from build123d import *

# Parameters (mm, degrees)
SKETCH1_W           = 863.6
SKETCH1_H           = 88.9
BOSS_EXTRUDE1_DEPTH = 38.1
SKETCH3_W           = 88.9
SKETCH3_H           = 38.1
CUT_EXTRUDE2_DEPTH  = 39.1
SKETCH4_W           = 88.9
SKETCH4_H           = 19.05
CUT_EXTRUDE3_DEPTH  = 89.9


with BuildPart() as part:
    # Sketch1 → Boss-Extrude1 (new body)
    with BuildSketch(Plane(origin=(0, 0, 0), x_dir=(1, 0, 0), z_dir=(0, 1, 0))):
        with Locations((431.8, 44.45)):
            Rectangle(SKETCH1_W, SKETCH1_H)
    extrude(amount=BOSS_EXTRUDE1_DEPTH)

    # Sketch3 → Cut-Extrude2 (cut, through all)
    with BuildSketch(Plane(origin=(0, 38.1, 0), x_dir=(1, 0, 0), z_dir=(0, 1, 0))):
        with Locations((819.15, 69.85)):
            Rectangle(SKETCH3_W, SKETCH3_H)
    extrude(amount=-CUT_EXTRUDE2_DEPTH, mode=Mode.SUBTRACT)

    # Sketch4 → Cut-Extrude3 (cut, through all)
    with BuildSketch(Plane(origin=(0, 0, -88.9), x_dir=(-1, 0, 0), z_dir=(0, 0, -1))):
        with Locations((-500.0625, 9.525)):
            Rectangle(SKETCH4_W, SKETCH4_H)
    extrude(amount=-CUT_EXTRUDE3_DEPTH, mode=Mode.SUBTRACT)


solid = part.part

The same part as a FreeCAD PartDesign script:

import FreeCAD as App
import Part
import Sketcher
Q = App.Units.Quantity


def add_polygon(sketch, points):
    """Adds a closed chain of lines whose ends are joined by coincident constraints."""
    first, n = sketch.GeometryCount, len(points)
    for a, b in zip(points, points[1:] + points[:1]):
        sketch.addGeometry(Part.LineSegment(App.Vector(*a, 0), App.Vector(*b, 0)), False)
    for i in range(n):
        sketch.addConstraint(Sketcher.Constraint("Coincident", first + i, 2, first + (i + 1) % n, 1))

doc = App.newDocument("Part")
body = doc.addObject("PartDesign::Body", "Body")

# Sketch on XZ plane
sketch1 = body.newObject("Sketcher::SketchObject", "Sketch")
sketch1.AttachmentSupport = (doc.getObject("XZ_Plane"), [""])
sketch1.MapMode = "FlatFace"
add_polygon(sketch1, [(0, -88.9), (0, 0), (863.6, 0), (863.6, -88.9)])  # lines 0-3
sketch1.addConstraint([
    Sketcher.Constraint("Vertical", 0),
    Sketcher.Constraint("Horizontal", 1),
    Sketcher.Constraint("Vertical", 2),
    Sketcher.Constraint("Horizontal", 3),
    Sketcher.Constraint("Coincident", 0, 2, -1, 1),
    Sketcher.Constraint("DistanceX", 1, 1, 1, 2, Q("34 in")),
    Sketcher.Constraint("DistanceY", 0, 1, 0, 2, Q("3.5 in")),
])
pad1 = body.newObject("PartDesign::Pad", "Pad")
pad1.Profile = sketch1
pad1.Length = Q("1.5 in")
pad1.Reversed = True

# Sketch on XZ plane
sketch2 = body.newObject("Sketcher::SketchObject", "Sketch001")
sketch2.AttachmentSupport = (doc.getObject("XZ_Plane"), [""])
sketch2.MapMode = "FlatFace"
sketch2.AttachmentOffset = App.Placement(App.Vector(0, 0, -1.5 * 25.4), App.Rotation())
add_polygon(sketch2, [(774.7, -88.9), (774.7, -50.8), (863.6, -50.8), (863.6, -88.9)])  # lines 0-3
sketch2.addConstraint([
    Sketcher.Constraint("Vertical", 0),
    Sketcher.Constraint("Horizontal", 1),
    Sketcher.Constraint("Vertical", 2),
    Sketcher.Constraint("Horizontal", 3),
    Sketcher.Constraint("DistanceX", 1, 1, 1, 2, Q("3.5 in")),
    Sketcher.Constraint("DistanceY", 0, 1, 0, 2, Q("1.5 in")),
    Sketcher.Constraint("DistanceY", 0, 2, -1, 1, Q("2 in")),
    Sketcher.Constraint("DistanceX", -1, 1, 1, 2, Q("34 in")),
])
pocket1 = body.newObject("PartDesign::Pocket", "Pocket")
pocket1.Profile = sketch2
pocket1.Type = "ThroughAll"
pocket1.Reversed = True

# Sketch on XY plane
sketch3 = body.newObject("Sketcher::SketchObject", "Sketch002")
sketch3.AttachmentSupport = (doc.getObject("XY_Plane"), [""])
sketch3.MapMode = "FlatFace"
sketch3.AttachmentOffset = App.Placement(App.Vector(0, 0, -3.5 * 25.4), App.Rotation())
add_polygon(sketch3, [(544.5125, 19.05), (544.5125, 0), (455.6125, 0), (455.6125, 19.05)])  # lines 0-3
sketch3.addConstraint([
    Sketcher.Constraint("Vertical", 0),
    Sketcher.Constraint("Horizontal", 1),
    Sketcher.Constraint("Vertical", 2),
    Sketcher.Constraint("Horizontal", 3),
    Sketcher.Constraint("PointOnObject", 0, 2, -1),
    Sketcher.Constraint("DistanceX", 1, 2, 1, 1, Q("3.5 in")),
    Sketcher.Constraint("DistanceY", 0, 2, 0, 1, Q("0.75 in")),
    Sketcher.Constraint("DistanceX", -1, 1, 0, 2, Q("21.4375 in")),
])
pocket2 = body.newObject("PartDesign::Pocket", "Pocket001")
pocket2.Profile = sketch3
pocket2.Type = "ThroughAll"
pocket2.Reversed = True

doc.recompute()
